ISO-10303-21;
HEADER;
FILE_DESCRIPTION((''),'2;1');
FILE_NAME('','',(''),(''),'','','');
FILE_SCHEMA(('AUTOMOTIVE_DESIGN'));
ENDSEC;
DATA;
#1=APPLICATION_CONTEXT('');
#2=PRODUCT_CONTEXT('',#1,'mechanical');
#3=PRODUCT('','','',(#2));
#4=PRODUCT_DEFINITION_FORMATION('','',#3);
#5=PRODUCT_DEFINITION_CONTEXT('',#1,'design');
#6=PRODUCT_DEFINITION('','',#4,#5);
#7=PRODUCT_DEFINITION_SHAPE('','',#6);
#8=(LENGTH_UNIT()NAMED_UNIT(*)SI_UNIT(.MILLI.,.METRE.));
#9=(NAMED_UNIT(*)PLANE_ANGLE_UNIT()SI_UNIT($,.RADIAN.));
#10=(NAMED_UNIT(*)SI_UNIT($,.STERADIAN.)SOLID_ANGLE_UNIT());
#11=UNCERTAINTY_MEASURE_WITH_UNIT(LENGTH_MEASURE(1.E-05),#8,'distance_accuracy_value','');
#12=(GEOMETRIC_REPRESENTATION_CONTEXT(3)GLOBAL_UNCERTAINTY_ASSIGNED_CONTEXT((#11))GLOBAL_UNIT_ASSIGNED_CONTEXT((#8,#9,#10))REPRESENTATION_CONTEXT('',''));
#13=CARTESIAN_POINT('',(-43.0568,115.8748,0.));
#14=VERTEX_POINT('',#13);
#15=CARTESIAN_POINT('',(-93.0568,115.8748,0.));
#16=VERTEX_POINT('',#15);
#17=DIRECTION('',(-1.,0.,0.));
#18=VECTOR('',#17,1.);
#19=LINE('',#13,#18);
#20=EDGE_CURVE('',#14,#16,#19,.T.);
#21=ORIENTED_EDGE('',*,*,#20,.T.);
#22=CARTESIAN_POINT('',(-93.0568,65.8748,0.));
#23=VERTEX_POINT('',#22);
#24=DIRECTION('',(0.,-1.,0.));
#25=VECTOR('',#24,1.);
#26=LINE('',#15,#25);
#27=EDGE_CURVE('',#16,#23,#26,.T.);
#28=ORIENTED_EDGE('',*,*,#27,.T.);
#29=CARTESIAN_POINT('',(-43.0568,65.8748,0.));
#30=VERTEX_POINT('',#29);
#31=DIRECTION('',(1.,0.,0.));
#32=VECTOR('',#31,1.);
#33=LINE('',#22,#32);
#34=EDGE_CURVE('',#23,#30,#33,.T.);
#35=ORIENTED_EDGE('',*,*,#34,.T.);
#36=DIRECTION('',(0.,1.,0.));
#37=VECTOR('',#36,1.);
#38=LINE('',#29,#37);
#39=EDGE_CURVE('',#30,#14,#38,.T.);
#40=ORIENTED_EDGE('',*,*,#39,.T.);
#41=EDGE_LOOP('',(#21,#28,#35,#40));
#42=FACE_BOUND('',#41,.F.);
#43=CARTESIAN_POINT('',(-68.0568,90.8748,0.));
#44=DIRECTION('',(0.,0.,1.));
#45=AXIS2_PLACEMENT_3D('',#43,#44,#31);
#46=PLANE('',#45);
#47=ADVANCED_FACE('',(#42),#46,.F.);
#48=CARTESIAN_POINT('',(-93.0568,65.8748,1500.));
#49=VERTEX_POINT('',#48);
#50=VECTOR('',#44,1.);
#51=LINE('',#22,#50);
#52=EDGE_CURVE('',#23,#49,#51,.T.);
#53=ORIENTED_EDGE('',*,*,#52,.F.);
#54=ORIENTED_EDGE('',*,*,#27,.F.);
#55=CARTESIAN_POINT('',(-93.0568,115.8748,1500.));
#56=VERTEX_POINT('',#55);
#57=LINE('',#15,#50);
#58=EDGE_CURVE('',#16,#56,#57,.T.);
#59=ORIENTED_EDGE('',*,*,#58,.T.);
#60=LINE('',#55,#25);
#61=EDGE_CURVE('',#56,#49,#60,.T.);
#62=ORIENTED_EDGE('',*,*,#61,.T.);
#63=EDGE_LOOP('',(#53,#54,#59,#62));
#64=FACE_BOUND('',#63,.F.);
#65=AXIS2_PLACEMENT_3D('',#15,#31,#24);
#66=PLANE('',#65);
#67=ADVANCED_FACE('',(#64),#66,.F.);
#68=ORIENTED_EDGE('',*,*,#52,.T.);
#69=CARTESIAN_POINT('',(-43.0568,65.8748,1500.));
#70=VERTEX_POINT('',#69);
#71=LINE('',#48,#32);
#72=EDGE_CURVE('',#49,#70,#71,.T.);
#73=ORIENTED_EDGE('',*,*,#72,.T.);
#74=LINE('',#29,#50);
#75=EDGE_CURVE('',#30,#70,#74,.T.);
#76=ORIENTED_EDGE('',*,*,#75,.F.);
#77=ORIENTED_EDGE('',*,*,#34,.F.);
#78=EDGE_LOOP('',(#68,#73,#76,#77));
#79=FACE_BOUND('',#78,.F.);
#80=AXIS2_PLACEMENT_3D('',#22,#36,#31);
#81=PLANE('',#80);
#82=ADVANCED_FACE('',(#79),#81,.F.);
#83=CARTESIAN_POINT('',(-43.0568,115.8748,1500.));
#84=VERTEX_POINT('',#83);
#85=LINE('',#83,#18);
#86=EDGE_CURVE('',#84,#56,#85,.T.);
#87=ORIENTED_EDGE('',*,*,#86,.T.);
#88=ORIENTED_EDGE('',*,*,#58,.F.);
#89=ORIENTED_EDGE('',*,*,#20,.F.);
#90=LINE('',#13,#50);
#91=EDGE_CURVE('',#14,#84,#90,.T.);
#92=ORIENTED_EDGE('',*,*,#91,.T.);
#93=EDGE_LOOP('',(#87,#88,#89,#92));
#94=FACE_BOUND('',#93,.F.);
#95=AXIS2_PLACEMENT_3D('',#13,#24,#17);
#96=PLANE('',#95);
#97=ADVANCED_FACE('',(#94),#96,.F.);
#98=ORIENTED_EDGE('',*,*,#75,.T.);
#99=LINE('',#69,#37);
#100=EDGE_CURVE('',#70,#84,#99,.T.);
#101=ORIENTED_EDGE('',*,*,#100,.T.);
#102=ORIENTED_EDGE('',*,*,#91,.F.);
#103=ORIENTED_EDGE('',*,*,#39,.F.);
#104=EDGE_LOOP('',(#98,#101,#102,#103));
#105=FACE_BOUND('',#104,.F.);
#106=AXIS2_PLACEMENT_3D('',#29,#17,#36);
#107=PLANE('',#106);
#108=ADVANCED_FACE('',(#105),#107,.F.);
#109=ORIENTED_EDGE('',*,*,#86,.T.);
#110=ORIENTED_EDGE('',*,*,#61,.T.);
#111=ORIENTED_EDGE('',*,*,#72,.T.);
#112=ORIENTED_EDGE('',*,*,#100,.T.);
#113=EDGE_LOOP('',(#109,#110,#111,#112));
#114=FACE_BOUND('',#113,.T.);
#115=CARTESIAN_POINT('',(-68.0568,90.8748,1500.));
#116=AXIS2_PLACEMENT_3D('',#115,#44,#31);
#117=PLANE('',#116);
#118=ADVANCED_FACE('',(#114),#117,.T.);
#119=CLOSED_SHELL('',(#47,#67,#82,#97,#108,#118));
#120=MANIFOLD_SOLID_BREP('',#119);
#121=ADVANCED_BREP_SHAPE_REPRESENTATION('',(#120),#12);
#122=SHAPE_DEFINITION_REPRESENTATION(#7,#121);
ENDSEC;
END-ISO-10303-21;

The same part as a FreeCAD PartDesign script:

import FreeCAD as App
import Part
import Sketcher
Q = App.Units.Quantity

doc = App.newDocument("Part")
body = doc.addObject("PartDesign::Body", "Body")

sketch1 = doc.addObject("Sketcher::SketchObject", "Sketch")
body.addObject(sketch1)
sketch1.AttachmentSupport = (doc.XY_Plane, [""])
sketch1.MapMode = "FlatFace"
sketch1.addGeometry(Part.LineSegment(App.Vector(-93, 116, 0), App.Vector(-93, 66, 0)), False)
sketch1.addGeometry(Part.LineSegment(App.Vector(-93, 66, 0), App.Vector(-43, 66, 0)), False)
sketch1.addGeometry(Part.LineSegment(App.Vector(-43, 66, 0), App.Vector(-43, 116, 0)), False)
sketch1.addGeometry(Part.LineSegment(App.Vector(-43, 116, 0), App.Vector(-93, 116, 0)), False)
sketch1.addConstraint(Sketcher.Constraint("Coincident", 0, 2, 1, 1))
sketch1.addConstraint(Sketcher.Constraint("Coincident", 1, 2, 2, 1))
sketch1.addConstraint(Sketcher.Constraint("Coincident", 2, 2, 3, 1))
sketch1.addConstraint(Sketcher.Constraint("Coincident", 3, 2, 0, 1))
sketch1.addConstraint(Sketcher.Constraint("Vertical", 0))
sketch1.addConstraint(Sketcher.Constraint("Horizontal", 1))
sketch1.addConstraint(Sketcher.Constraint("Vertical", 2))
sketch1.addConstraint(Sketcher.Constraint("Horizontal", 3))
sketch1.addConstraint(Sketcher.Constraint("Equal", 3, 0))
sketch1.addConstraint(Sketcher.Constraint("DistanceX", 1, 1, 1, 2, Q("50 mm")))
sketch1.addConstraint(Sketcher.Constraint("DistanceX", 0, 2, -1, 1, Q("93.0568 mm")))
sketch1.addConstraint(Sketcher.Constraint("DistanceY", -1, 1, 0, 2, Q("65.8748 mm")))
pad1 = doc.addObject("PartDesign::Pad", "Pad")
body.addObject(pad1)
pad1.Profile = sketch1
pad1.Length = 1500

doc.recompute()
